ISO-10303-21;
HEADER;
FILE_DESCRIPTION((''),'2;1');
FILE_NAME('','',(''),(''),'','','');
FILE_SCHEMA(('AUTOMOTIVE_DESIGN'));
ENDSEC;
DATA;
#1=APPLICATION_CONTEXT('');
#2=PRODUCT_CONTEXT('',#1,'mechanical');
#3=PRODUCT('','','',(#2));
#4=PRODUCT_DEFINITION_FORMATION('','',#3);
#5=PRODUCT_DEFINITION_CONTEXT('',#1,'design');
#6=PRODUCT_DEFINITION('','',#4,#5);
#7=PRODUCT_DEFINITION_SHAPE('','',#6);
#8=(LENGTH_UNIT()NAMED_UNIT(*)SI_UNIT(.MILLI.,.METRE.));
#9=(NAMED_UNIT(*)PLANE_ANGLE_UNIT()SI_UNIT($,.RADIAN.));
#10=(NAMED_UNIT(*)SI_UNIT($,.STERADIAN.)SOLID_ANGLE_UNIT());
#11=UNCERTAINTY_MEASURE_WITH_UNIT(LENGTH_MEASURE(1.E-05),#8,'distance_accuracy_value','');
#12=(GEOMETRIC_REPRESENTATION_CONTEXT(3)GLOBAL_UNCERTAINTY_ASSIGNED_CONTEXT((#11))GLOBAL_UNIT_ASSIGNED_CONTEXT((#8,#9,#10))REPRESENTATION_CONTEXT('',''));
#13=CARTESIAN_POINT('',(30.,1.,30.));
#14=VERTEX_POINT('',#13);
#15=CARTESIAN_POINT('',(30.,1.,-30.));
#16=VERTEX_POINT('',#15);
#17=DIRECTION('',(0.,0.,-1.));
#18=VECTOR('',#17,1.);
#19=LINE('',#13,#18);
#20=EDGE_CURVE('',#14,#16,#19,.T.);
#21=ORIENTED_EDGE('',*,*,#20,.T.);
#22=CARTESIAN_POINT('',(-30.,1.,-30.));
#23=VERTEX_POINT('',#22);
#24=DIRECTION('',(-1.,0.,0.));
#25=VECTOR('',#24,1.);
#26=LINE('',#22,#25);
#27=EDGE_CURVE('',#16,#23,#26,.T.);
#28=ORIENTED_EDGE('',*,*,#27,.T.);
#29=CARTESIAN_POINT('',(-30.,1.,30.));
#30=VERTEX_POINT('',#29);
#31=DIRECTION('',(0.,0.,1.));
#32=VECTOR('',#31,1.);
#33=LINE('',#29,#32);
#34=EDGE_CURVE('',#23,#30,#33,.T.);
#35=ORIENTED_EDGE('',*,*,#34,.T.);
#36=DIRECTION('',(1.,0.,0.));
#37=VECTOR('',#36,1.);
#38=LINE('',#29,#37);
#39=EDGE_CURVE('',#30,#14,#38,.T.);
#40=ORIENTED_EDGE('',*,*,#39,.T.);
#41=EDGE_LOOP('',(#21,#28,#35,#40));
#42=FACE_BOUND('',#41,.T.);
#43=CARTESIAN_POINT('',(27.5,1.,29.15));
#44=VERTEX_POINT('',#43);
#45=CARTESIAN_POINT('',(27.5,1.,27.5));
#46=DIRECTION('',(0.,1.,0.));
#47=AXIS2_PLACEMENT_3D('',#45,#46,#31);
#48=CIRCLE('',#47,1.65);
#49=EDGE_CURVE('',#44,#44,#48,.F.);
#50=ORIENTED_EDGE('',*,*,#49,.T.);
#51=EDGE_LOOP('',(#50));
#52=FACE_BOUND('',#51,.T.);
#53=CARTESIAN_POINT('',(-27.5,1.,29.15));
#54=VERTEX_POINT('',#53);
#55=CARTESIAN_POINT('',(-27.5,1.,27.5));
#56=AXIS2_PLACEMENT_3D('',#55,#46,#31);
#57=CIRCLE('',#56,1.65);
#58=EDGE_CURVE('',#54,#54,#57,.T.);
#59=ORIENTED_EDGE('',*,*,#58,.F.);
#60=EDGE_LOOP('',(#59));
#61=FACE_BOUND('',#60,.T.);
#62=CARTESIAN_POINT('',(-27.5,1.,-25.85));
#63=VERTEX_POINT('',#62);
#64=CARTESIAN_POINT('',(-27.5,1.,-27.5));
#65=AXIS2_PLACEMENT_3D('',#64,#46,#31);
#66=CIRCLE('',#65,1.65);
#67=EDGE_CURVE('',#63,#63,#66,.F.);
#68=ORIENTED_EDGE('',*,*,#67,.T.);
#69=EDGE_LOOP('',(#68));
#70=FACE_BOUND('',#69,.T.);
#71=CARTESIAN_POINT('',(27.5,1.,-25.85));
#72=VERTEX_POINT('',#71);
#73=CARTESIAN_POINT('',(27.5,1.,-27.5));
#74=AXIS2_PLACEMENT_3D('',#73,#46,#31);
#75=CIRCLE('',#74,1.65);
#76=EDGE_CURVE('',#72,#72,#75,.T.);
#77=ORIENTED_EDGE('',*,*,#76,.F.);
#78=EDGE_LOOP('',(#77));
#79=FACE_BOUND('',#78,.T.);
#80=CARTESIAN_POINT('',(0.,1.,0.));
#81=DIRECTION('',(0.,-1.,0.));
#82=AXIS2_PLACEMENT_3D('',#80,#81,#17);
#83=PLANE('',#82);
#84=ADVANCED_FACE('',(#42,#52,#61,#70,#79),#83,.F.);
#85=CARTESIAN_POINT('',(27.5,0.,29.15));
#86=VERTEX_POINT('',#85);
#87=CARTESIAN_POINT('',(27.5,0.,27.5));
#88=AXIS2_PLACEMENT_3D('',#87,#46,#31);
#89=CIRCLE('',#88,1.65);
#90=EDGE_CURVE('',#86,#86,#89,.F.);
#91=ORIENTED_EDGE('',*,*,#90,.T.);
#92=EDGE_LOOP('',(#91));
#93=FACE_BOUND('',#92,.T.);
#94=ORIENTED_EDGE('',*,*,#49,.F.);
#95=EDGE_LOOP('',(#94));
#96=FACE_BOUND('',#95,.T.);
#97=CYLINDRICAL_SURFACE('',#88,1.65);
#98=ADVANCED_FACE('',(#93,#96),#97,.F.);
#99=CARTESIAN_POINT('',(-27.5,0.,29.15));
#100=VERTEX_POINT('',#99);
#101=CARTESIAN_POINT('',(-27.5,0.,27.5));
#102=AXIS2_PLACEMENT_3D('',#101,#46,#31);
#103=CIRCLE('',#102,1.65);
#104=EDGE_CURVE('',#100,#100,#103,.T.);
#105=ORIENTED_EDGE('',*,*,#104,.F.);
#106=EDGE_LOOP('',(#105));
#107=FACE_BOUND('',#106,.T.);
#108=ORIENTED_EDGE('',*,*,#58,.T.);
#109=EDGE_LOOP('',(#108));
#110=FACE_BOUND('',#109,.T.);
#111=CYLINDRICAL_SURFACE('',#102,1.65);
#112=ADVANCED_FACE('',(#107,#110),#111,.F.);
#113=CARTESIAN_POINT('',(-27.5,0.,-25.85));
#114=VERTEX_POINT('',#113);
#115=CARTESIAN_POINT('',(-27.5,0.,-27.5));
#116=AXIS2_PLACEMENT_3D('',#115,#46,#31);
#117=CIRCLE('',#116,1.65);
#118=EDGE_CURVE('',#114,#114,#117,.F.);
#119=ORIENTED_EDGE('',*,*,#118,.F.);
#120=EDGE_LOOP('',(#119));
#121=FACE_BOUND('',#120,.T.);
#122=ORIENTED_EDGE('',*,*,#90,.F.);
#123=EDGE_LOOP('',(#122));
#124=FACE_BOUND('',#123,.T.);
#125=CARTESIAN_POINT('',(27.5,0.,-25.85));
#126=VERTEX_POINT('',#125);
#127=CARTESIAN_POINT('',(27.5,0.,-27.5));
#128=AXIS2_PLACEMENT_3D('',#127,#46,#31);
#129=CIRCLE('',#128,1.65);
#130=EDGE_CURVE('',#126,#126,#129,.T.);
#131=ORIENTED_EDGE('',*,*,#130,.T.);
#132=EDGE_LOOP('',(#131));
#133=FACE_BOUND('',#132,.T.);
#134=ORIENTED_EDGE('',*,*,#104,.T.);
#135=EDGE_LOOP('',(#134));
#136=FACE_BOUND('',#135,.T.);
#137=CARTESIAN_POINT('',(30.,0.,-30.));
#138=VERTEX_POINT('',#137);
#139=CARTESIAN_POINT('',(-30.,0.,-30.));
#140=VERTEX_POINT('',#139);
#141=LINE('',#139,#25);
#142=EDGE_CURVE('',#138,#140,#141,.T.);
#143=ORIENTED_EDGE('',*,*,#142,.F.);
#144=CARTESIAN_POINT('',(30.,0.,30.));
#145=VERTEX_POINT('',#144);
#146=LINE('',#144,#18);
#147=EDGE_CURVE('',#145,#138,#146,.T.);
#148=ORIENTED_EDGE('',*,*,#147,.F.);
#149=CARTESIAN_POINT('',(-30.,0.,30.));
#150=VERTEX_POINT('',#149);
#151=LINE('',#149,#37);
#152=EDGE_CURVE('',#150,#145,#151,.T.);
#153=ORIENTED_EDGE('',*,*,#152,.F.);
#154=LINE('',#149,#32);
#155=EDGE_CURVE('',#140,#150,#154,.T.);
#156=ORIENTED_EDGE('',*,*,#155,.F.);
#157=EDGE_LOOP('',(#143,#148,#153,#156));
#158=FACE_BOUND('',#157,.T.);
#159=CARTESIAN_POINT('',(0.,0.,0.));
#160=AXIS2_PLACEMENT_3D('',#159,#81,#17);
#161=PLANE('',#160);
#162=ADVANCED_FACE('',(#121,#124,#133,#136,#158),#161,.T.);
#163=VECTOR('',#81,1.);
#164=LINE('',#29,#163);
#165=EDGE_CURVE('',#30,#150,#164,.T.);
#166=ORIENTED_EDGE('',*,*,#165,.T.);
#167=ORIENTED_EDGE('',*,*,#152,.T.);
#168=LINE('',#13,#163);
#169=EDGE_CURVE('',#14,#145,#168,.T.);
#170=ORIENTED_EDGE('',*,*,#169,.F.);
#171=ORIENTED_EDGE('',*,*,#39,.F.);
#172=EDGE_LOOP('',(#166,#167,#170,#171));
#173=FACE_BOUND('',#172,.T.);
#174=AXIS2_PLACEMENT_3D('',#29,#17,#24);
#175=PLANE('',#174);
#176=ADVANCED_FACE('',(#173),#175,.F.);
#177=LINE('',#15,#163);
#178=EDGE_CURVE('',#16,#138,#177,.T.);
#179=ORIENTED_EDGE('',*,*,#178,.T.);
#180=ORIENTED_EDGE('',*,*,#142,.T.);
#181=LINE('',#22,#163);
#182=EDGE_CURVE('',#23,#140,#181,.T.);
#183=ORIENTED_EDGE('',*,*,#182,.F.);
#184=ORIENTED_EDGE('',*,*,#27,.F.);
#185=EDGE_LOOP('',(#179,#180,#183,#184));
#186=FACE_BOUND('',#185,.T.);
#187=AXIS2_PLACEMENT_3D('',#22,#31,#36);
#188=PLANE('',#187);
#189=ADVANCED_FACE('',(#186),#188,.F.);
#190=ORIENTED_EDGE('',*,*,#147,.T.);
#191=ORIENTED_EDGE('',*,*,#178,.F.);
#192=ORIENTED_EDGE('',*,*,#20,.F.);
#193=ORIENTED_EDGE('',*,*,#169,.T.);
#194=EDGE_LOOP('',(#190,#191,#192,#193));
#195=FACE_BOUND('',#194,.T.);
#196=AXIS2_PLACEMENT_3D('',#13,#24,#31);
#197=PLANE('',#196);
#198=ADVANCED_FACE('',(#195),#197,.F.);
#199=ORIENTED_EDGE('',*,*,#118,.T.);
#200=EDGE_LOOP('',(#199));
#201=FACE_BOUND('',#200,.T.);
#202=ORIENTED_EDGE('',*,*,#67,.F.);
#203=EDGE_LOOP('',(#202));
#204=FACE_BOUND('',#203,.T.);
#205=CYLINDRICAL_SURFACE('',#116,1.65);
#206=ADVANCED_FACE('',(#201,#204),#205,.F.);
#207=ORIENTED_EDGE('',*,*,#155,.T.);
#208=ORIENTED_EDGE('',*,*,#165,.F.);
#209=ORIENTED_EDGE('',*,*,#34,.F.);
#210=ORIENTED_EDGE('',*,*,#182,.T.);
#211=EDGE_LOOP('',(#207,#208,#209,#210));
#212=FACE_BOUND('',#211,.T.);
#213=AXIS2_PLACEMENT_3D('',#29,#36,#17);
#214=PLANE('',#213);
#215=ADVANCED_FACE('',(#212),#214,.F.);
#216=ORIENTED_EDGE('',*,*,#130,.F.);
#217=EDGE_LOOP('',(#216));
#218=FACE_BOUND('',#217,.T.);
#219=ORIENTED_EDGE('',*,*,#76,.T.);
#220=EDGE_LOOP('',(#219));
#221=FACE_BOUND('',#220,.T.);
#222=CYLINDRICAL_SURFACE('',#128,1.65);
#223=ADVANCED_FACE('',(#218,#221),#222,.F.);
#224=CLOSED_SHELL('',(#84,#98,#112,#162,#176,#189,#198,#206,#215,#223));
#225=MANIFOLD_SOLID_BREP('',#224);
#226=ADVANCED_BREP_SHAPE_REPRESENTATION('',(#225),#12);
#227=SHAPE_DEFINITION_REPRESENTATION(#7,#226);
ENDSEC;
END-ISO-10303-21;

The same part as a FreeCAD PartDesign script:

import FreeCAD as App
import Part
import Sketcher
Q = App.Units.Quantity


def add_polygon(sketch, points):
    """Adds a closed chain of lines whose ends are joined by coincident constraints."""
    first, n = sketch.GeometryCount, len(points)
    for a, b in zip(points, points[1:] + points[:1]):
        sketch.addGeometry(Part.LineSegment(App.Vector(*a, 0), App.Vector(*b, 0)), False)
    for i in range(n):
        sketch.addConstraint(Sketcher.Constraint("Coincident", first + i, 2, first + (i + 1) % n, 1))

doc = App.newDocument("Part")
params = doc.addObject("Spreadsheet::Sheet", "Params")
for row, (alias, value) in enumerate([
    ("sketch1_width", "60 mm"),
    ("pad1_length", "1 mm"),
    ("sketch2_diameter", "3.3 mm"),
], start=1):
    params.set(f"A{row}", alias)
    params.set(f"B{row}", "=" + value)
    params.setAlias(f"B{row}", alias)

body = doc.addObject("PartDesign::Body", "Body")

sketch1 = body.newObject("Sketcher::SketchObject", "Sketch")
sketch1.AttachmentSupport = (doc.getObject("XZ_Plane"), [""])
sketch1.MapMode = "FlatFace"
add_polygon(sketch1, [(-30, -30), (-30, 30), (30, 30), (30, -30)])
sketch1.addConstraint(Sketcher.Constraint("Vertical", 0))
sketch1.addConstraint(Sketcher.Constraint("Horizontal", 1))
sketch1.addConstraint(Sketcher.Constraint("Vertical", 2))
sketch1.addConstraint(Sketcher.Constraint("Horizontal", 3))
sketch1.addConstraint(Sketcher.Constraint("Symmetric", 0, 2, 2, 2, -1, 1))
sketch1.addConstraint(Sketcher.Constraint("Equal", 3, 0))
sketch1.addConstraint(Sketcher.Constraint("DistanceX", 1, 1, 1, 2, Q("60 mm")))
sketch1.setExpression("Constraints[10]", "Params.sketch1_width")
pad1 = body.newObject("PartDesign::Pad", "Pad")
pad1.Profile = sketch1
pad1.setExpression("Length", "Params.pad1_length")
pad1.Reversed = True

sketch2 = body.newObject("Sketcher::SketchObject", "Sketch001")
sketch2.AttachmentSupport = (doc.getObject("XZ_Plane"), [""])
sketch2.MapMode = "FlatFace"
sketch2.AttachmentOffset = App.Placement(App.Vector(0, 0, -1), App.Rotation())
sketch2.addGeometry(Part.Circle(App.Vector(-27.5, -27.5, 0), App.Vector(0, 0, 1), 1.6), False)
sketch2.addGeometry(Part.Circle(App.Vector(27.5, -27.5, 0), App.Vector(0, 0, 1), 1.6), False)
sketch2.addGeometry(Part.Circle(App.Vector(27.5, 27.5, 0), App.Vector(0, 0, 1), 1.6), False)
sketch2.addGeometry(Part.Circle(App.Vector(-27.5, 27.5, 0), App.Vector(0, 0, 1), 1.6), False)
sketch2.addConstraint(Sketcher.Constraint("Equal", 0, 1))
sketch2.addConstraint(Sketcher.Constraint("Equal", 1, 2))
sketch2.addConstraint(Sketcher.Constraint("Equal", 2, 3))
sketch2.addConstraint(Sketcher.Constraint("Symmetric", 0, 3, 2, 3, -1, 1))
sketch2.addConstraint(Sketcher.Constraint("Symmetric", 1, 3, 3, 3, -1, 1))
sketch2.addConstraint(Sketcher.Constraint("Symmetric", 0, 3, 1, 3, -2))
sketch2.addConstraint(Sketcher.Constraint("Diameter", 0, Q("3.3 mm")))
sketch2.addConstraint(Sketcher.Constraint("DistanceX", 0, 3, 1, 3, Q("55 mm")))
sketch2.addConstraint(Sketcher.Constraint("DistanceY", 1, 3, 2, 3, Q("55 mm")))
sketch2.setExpression("Constraints[6]", "Params.sketch2_diameter")
pocket1 = body.newObject("PartDesign::Pocket", "Pocket")
pocket1.Profile = sketch2
pocket1.Type = "ThroughAll"
pocket1.Reversed = True

doc.recompute()
